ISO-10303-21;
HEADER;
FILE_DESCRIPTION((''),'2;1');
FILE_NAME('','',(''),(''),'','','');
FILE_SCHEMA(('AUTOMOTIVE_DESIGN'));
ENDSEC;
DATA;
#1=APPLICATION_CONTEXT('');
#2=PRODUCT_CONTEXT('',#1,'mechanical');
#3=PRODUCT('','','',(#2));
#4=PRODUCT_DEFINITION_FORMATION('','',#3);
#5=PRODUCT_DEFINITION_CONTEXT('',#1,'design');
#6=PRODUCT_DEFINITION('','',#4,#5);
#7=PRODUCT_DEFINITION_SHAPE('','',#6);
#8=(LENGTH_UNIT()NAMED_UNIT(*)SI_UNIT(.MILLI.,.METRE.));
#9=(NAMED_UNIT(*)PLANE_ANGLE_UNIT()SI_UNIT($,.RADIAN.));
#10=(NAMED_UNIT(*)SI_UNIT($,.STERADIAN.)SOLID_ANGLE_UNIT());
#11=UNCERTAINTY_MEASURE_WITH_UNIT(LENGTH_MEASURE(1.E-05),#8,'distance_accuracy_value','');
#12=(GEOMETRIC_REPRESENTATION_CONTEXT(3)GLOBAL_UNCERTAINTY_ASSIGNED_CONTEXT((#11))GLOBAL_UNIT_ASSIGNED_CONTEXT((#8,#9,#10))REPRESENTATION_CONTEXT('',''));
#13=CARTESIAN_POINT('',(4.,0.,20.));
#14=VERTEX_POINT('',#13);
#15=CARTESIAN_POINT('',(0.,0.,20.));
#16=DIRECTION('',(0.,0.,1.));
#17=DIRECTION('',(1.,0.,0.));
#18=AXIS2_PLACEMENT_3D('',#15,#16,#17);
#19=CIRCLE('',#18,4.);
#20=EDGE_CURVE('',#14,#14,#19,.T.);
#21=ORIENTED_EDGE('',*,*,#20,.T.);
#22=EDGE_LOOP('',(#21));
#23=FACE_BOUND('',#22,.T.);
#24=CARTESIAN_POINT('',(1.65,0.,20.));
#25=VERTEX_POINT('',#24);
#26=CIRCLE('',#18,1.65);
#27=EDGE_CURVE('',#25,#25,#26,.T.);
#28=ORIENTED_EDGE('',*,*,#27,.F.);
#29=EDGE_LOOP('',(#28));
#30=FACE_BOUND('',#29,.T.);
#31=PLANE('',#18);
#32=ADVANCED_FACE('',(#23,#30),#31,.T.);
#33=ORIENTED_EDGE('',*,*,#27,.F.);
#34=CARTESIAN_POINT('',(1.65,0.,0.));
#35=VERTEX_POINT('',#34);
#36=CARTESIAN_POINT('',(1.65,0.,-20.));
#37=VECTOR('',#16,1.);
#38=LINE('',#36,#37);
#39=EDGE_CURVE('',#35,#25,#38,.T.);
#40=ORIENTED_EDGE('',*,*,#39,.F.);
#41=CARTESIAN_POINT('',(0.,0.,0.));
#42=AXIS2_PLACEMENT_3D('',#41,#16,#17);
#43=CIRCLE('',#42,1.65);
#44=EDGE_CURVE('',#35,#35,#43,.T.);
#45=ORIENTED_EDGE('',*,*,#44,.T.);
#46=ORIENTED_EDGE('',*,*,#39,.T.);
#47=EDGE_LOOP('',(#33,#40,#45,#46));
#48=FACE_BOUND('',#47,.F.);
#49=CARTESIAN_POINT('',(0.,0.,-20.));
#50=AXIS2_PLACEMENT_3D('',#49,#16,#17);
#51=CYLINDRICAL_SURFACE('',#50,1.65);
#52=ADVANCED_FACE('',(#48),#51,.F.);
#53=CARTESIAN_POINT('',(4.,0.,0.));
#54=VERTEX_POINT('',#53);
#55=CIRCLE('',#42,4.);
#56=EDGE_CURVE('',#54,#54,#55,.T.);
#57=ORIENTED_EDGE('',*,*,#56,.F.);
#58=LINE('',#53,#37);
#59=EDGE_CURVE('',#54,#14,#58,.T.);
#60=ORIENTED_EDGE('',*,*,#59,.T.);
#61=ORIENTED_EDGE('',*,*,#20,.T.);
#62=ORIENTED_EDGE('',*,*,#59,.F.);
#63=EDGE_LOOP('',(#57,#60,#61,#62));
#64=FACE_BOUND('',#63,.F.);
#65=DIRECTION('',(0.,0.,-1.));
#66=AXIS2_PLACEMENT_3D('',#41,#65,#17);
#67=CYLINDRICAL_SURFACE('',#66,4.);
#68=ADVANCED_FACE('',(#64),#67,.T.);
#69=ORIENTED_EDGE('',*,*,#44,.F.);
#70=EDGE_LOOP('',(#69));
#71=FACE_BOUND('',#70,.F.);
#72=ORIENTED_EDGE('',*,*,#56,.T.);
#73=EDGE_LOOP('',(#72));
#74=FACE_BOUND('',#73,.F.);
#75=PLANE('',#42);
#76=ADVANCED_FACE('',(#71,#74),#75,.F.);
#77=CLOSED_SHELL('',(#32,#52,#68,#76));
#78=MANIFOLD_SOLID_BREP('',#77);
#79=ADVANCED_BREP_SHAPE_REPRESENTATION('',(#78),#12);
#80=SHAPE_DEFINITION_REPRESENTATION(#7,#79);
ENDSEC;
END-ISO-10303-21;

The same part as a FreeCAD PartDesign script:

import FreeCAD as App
import Part
import Sketcher

doc = App.newDocument("Part")
body = doc.addObject("PartDesign::Body", "Body")

# Sketch on XY plane
sketch1 = body.newObject("Sketcher::SketchObject", "Sketch")
sketch1.AttachmentSupport = (doc.getObject("XY_Plane"), [""])
sketch1.MapMode = "FlatFace"
sketch1.addGeometry(Part.Circle(App.Vector(0, 0, 0), App.Vector(0, 0, 1), 4), False)
sketch1.addConstraint([
    Sketcher.Constraint("Coincident", 0, 3, -1, 1),
    Sketcher.Constraint("Diameter", 0, 8.0),
])
pad1 = body.newObject("PartDesign::Pad", "Pad")
pad1.Profile = sketch1
pad1.Length = 20

# Sketch on XY plane
sketch2 = body.newObject("Sketcher::SketchObject", "Sketch001")
sketch2.AttachmentSupport = (doc.getObject("XY_Plane"), [""])
sketch2.MapMode = "FlatFace"
sketch2.addGeometry(Part.Circle(App.Vector(0, 0, 0), App.Vector(0, 0, 1), 1.6), False)
sketch2.addConstraint([
    Sketcher.Constraint("Coincident", 0, 3, -1, 1),
    Sketcher.Constraint("Diameter", 0, 3.3),
])
doc.recompute()
hole = body.newObject("PartDesign::Hole", "Hole")
hole.Profile = sketch2
hole.ThreadType = "None"
hole.Diameter = 3.3
hole.DepthType = "Dimension"
hole.Depth = 20
hole.DrillPoint = "Flat"
hole.Reversed = True

doc.recompute()
